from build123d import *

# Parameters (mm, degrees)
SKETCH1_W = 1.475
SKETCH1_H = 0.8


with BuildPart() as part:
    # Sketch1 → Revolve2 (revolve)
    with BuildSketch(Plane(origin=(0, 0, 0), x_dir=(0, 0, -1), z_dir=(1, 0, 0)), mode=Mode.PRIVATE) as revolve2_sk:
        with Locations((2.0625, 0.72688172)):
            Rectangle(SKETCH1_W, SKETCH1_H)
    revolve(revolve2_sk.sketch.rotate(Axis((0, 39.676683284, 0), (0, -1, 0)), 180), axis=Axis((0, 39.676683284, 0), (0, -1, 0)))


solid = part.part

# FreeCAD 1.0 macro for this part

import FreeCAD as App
import Part
import Sketcher
from FreeCAD import Vector
Q = App.Units.Quantity


def add_polygon(sketch, points):
    """Adds a closed chain of lines whose ends are joined by coincident constraints."""
    first, n = sketch.GeometryCount, len(points)
    for a, b in zip(points, points[1:] + points[:1]):
        sketch.addGeometry(Part.LineSegment(App.Vector(*a, 0), App.Vector(*b, 0)), False)
    for i in range(n):
        sketch.addConstraint(Sketcher.Constraint("Coincident", first + i, 2, first + (i + 1) % n, 1))

doc = App.newDocument("Part")
body = doc.addObject("PartDesign::Body", "Body")

# Sketch on YZ plane
sketch1 = doc.addObject("Sketcher::SketchObject", "Sketch")
body.addObject(sketch1)
sketch1.AttachmentSupport = (doc.YZ_Plane, [""])
sketch1.MapMode = "FlatFace"
add_polygon(sketch1, [(1.1, -1.3), (0.3, -1.3), (0.3, -2.8), (1.1, -2.8)])  # lines 0-3
sketch1.addConstraint([
    Sketcher.Constraint("Horizontal", 0),
    Sketcher.Constraint("Vertical", 1),
    Sketcher.Constraint("Horizontal", 2),
    Sketcher.Constraint("Vertical", 3),
    Sketcher.Constraint("DistanceX", 0, 2, 0, 1, Q("0.8 mm")),
    Sketcher.Constraint("DistanceY", 1, 2, -1, 1, Q("2.8 mm")),
    Sketcher.Constraint("DistanceY", 1, 2, 1, 1, Q("1.475 mm")),
    Sketcher.Constraint("DistanceX", -1, 1, 0, 2, Q("0.326882 mm")),
])
revolution = doc.addObject("PartDesign::Revolution", "Revolution")
body.addObject(revolution)
revolution.Profile = sketch1
revolution.ReferenceAxis = (sketch1, ["H_Axis"])
revolution.Angle = 360

doc.recompute()
